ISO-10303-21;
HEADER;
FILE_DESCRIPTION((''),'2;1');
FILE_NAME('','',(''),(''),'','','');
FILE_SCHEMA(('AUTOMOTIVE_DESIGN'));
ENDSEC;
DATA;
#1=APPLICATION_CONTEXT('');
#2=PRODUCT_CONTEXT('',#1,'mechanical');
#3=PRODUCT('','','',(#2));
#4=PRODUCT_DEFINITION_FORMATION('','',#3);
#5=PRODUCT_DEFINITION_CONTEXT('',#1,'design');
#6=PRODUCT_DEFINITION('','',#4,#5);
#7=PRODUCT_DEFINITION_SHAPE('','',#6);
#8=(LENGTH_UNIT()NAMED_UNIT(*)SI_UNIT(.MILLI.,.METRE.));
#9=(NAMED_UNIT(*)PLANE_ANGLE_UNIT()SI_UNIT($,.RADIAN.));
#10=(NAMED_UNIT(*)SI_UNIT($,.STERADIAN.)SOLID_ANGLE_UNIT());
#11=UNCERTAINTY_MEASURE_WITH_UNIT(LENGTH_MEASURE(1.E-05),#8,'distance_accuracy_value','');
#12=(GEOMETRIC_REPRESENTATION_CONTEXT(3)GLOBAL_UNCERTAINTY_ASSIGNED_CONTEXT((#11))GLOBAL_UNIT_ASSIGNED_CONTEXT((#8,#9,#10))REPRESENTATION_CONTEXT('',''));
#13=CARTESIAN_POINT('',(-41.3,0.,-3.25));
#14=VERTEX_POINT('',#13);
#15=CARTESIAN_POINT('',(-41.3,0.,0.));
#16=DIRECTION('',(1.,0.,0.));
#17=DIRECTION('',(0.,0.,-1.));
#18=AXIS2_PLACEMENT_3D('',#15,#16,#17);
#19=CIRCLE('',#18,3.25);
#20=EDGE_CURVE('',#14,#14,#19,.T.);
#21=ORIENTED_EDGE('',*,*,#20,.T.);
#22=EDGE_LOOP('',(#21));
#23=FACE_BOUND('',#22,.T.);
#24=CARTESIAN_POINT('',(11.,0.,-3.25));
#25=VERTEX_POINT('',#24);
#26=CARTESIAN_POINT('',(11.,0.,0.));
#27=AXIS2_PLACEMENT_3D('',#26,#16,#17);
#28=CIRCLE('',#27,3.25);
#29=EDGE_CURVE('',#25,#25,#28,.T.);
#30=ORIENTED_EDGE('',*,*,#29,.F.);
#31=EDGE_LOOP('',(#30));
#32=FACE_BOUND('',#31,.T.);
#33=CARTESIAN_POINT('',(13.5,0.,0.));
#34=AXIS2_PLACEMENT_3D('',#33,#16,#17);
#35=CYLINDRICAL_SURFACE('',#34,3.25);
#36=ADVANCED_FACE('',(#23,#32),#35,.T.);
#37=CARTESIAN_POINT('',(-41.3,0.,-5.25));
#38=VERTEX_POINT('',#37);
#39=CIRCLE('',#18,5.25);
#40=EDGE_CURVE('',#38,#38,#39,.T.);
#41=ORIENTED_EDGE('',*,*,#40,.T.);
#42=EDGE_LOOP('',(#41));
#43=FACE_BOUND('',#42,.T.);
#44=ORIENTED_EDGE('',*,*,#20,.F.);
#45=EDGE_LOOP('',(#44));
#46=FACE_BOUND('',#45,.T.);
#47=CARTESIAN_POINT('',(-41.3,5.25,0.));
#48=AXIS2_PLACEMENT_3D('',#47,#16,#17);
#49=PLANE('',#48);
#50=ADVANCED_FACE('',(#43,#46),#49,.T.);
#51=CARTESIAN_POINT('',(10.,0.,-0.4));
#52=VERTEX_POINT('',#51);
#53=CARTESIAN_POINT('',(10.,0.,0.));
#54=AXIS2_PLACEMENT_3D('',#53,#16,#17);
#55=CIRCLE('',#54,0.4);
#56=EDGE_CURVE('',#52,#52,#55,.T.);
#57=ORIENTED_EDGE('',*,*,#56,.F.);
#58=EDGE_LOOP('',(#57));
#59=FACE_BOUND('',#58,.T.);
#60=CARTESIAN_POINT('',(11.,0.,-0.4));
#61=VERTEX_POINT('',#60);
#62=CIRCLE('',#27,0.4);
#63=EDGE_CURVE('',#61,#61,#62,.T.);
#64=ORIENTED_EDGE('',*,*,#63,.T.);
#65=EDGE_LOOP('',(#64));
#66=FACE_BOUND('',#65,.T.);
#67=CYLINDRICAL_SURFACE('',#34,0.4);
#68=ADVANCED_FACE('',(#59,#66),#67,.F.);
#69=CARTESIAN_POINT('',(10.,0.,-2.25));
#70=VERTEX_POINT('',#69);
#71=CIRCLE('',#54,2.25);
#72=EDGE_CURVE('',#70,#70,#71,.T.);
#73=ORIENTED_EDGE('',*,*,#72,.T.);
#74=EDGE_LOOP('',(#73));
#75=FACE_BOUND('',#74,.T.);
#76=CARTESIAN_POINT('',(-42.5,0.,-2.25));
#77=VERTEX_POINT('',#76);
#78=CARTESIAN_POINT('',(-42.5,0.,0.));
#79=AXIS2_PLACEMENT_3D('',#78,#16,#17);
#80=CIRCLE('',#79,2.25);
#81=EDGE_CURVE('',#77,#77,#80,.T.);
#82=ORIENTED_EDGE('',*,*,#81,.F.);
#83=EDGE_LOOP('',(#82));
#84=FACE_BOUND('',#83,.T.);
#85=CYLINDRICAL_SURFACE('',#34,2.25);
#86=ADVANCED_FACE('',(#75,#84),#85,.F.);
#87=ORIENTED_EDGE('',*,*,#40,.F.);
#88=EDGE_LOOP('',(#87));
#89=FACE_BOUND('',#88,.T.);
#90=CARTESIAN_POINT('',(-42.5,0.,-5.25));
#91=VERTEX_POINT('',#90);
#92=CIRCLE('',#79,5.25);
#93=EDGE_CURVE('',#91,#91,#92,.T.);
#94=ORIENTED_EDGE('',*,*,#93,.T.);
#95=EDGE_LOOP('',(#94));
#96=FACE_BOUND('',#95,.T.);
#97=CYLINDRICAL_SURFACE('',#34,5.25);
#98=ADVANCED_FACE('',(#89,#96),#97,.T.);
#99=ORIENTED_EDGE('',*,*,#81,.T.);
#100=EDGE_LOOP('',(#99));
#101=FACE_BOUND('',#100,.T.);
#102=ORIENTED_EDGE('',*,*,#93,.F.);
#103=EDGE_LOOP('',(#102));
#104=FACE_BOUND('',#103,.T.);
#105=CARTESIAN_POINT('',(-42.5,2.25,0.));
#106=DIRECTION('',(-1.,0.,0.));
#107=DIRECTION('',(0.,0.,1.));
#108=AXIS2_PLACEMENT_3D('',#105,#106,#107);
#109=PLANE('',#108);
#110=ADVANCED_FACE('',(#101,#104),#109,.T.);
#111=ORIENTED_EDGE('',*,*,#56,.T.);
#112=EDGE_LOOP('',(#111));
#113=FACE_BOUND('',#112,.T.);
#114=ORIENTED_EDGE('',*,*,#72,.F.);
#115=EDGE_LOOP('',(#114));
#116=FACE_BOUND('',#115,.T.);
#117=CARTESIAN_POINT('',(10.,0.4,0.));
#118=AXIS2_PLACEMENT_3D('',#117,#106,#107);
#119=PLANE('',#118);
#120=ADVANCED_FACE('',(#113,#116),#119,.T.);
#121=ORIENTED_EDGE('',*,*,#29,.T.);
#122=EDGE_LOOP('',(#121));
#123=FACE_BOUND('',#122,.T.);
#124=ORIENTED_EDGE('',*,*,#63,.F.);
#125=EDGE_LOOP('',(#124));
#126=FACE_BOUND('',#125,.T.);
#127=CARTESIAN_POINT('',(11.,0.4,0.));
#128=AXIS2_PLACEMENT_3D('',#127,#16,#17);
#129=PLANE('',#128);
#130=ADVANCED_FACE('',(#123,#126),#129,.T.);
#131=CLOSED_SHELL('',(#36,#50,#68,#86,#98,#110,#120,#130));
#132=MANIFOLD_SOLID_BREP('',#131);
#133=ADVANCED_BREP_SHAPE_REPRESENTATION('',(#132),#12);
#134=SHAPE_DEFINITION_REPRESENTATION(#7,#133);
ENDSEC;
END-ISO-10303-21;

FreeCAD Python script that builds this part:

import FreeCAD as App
import Part
import Sketcher

V = App.Vector

doc = App.newDocument("Part")
params = doc.addObject("Spreadsheet::Sheet", "Params")
for row, (alias, value) in enumerate([
    ("sketch1_width", "1 mm"),
    ("sketch1_height", "2 mm"),
    ("sketch1_height2", "3 mm"),
    ("sketch1_width2", "52.3 mm"),
    ("sketch1_width3", "1.2 mm"),
    ("revolution_angle", "360 deg"),
], start=1):
    params.set(f"A{row}", alias)
    params.set(f"B{row}", "=" + value)
    params.setAlias(f"B{row}", alias)

body = doc.addObject("PartDesign::Body", "Body")

# Sketch on XY plane
sketch1 = body.newObject("Sketcher::SketchObject", "Sketch")
sketch1.AttachmentSupport = (doc.getObject("XY_Plane"), [""])
sketch1.MapMode = "FlatFace"
sketch1.addGeometry([
    Part.LineSegment(V(11, 0.4, 0), V(11, 3.25, 0)),  # 0
    Part.LineSegment(V(11, 3.25, 0), V(-41.3, 3.25, 0)),  # 1
    Part.LineSegment(V(-41.3, 3.25, 0), V(-41.3, 5.25, 0)),  # 2
    Part.LineSegment(V(-41.3, 5.25, 0), V(-42.5, 5.25, 0)),  # 3
    Part.LineSegment(V(-42.5, 5.25, 0), V(-42.5, 2.25, 0)),  # 4
    Part.LineSegment(V(-42.5, 2.25, 0), V(10, 2.25, 0)),  # 5
    Part.LineSegment(V(10, 2.25, 0), V(10, 0.4, 0)),  # 6
    Part.LineSegment(V(10, 0.4, 0), V(11, 0.4, 0)),  # 7
], False)
sketch1.addConstraint([
    Sketcher.Constraint("Coincident", 0, 2, 1, 1),
    Sketcher.Constraint("Coincident", 1, 2, 2, 1),
    Sketcher.Constraint("Coincident", 2, 2, 3, 1),
    Sketcher.Constraint("Coincident", 3, 2, 4, 1),
    Sketcher.Constraint("Coincident", 4, 2, 5, 1),
    Sketcher.Constraint("Coincident", 5, 2, 6, 1),
    Sketcher.Constraint("Coincident", 6, 2, 7, 1),
    Sketcher.Constraint("Coincident", 7, 2, 0, 1),
    Sketcher.Constraint("Vertical", 0),
    Sketcher.Constraint("Horizontal", 1),
    Sketcher.Constraint("Vertical", 2),
    Sketcher.Constraint("Horizontal", 3),
    Sketcher.Constraint("Vertical", 4),
    Sketcher.Constraint("Horizontal", 5),
    Sketcher.Constraint("Vertical", 6),
    Sketcher.Constraint("Horizontal", 7),
    Sketcher.Constraint("DistanceX", 7, 1, 7, 2, 1.0),
    Sketcher.Constraint("DistanceY", 2, 1, 2, 2, 2.0),
    Sketcher.Constraint("DistanceY", 4, 2, 4, 1, 3.0),
    Sketcher.Constraint("DistanceX", 1, 2, 1, 1, 52.3),
    Sketcher.Constraint("DistanceX", 3, 2, 3, 1, 1.2),
    Sketcher.Constraint("DistanceX", -1, 1, 0, 2, 11.0),
    Sketcher.Constraint("DistanceY", 0, 1, 0, 2, 2.85),
    Sketcher.Constraint("DistanceY", -1, 1, 6, 2, 0.4),
])
sketch1.setExpression("Constraints[16]", "Params.sketch1_width")
sketch1.setExpression("Constraints[17]", "Params.sketch1_height")
sketch1.setExpression("Constraints[18]", "Params.sketch1_height2")
sketch1.setExpression("Constraints[19]", "Params.sketch1_width2")
sketch1.setExpression("Constraints[20]", "Params.sketch1_width3")
revolution = body.newObject("PartDesign::Revolution", "Revolution")
revolution.Profile = sketch1
revolution.ReferenceAxis = (sketch1, ["H_Axis"])
revolution.setExpression("Angle", "Params.revolution_angle")

doc.recompute()
